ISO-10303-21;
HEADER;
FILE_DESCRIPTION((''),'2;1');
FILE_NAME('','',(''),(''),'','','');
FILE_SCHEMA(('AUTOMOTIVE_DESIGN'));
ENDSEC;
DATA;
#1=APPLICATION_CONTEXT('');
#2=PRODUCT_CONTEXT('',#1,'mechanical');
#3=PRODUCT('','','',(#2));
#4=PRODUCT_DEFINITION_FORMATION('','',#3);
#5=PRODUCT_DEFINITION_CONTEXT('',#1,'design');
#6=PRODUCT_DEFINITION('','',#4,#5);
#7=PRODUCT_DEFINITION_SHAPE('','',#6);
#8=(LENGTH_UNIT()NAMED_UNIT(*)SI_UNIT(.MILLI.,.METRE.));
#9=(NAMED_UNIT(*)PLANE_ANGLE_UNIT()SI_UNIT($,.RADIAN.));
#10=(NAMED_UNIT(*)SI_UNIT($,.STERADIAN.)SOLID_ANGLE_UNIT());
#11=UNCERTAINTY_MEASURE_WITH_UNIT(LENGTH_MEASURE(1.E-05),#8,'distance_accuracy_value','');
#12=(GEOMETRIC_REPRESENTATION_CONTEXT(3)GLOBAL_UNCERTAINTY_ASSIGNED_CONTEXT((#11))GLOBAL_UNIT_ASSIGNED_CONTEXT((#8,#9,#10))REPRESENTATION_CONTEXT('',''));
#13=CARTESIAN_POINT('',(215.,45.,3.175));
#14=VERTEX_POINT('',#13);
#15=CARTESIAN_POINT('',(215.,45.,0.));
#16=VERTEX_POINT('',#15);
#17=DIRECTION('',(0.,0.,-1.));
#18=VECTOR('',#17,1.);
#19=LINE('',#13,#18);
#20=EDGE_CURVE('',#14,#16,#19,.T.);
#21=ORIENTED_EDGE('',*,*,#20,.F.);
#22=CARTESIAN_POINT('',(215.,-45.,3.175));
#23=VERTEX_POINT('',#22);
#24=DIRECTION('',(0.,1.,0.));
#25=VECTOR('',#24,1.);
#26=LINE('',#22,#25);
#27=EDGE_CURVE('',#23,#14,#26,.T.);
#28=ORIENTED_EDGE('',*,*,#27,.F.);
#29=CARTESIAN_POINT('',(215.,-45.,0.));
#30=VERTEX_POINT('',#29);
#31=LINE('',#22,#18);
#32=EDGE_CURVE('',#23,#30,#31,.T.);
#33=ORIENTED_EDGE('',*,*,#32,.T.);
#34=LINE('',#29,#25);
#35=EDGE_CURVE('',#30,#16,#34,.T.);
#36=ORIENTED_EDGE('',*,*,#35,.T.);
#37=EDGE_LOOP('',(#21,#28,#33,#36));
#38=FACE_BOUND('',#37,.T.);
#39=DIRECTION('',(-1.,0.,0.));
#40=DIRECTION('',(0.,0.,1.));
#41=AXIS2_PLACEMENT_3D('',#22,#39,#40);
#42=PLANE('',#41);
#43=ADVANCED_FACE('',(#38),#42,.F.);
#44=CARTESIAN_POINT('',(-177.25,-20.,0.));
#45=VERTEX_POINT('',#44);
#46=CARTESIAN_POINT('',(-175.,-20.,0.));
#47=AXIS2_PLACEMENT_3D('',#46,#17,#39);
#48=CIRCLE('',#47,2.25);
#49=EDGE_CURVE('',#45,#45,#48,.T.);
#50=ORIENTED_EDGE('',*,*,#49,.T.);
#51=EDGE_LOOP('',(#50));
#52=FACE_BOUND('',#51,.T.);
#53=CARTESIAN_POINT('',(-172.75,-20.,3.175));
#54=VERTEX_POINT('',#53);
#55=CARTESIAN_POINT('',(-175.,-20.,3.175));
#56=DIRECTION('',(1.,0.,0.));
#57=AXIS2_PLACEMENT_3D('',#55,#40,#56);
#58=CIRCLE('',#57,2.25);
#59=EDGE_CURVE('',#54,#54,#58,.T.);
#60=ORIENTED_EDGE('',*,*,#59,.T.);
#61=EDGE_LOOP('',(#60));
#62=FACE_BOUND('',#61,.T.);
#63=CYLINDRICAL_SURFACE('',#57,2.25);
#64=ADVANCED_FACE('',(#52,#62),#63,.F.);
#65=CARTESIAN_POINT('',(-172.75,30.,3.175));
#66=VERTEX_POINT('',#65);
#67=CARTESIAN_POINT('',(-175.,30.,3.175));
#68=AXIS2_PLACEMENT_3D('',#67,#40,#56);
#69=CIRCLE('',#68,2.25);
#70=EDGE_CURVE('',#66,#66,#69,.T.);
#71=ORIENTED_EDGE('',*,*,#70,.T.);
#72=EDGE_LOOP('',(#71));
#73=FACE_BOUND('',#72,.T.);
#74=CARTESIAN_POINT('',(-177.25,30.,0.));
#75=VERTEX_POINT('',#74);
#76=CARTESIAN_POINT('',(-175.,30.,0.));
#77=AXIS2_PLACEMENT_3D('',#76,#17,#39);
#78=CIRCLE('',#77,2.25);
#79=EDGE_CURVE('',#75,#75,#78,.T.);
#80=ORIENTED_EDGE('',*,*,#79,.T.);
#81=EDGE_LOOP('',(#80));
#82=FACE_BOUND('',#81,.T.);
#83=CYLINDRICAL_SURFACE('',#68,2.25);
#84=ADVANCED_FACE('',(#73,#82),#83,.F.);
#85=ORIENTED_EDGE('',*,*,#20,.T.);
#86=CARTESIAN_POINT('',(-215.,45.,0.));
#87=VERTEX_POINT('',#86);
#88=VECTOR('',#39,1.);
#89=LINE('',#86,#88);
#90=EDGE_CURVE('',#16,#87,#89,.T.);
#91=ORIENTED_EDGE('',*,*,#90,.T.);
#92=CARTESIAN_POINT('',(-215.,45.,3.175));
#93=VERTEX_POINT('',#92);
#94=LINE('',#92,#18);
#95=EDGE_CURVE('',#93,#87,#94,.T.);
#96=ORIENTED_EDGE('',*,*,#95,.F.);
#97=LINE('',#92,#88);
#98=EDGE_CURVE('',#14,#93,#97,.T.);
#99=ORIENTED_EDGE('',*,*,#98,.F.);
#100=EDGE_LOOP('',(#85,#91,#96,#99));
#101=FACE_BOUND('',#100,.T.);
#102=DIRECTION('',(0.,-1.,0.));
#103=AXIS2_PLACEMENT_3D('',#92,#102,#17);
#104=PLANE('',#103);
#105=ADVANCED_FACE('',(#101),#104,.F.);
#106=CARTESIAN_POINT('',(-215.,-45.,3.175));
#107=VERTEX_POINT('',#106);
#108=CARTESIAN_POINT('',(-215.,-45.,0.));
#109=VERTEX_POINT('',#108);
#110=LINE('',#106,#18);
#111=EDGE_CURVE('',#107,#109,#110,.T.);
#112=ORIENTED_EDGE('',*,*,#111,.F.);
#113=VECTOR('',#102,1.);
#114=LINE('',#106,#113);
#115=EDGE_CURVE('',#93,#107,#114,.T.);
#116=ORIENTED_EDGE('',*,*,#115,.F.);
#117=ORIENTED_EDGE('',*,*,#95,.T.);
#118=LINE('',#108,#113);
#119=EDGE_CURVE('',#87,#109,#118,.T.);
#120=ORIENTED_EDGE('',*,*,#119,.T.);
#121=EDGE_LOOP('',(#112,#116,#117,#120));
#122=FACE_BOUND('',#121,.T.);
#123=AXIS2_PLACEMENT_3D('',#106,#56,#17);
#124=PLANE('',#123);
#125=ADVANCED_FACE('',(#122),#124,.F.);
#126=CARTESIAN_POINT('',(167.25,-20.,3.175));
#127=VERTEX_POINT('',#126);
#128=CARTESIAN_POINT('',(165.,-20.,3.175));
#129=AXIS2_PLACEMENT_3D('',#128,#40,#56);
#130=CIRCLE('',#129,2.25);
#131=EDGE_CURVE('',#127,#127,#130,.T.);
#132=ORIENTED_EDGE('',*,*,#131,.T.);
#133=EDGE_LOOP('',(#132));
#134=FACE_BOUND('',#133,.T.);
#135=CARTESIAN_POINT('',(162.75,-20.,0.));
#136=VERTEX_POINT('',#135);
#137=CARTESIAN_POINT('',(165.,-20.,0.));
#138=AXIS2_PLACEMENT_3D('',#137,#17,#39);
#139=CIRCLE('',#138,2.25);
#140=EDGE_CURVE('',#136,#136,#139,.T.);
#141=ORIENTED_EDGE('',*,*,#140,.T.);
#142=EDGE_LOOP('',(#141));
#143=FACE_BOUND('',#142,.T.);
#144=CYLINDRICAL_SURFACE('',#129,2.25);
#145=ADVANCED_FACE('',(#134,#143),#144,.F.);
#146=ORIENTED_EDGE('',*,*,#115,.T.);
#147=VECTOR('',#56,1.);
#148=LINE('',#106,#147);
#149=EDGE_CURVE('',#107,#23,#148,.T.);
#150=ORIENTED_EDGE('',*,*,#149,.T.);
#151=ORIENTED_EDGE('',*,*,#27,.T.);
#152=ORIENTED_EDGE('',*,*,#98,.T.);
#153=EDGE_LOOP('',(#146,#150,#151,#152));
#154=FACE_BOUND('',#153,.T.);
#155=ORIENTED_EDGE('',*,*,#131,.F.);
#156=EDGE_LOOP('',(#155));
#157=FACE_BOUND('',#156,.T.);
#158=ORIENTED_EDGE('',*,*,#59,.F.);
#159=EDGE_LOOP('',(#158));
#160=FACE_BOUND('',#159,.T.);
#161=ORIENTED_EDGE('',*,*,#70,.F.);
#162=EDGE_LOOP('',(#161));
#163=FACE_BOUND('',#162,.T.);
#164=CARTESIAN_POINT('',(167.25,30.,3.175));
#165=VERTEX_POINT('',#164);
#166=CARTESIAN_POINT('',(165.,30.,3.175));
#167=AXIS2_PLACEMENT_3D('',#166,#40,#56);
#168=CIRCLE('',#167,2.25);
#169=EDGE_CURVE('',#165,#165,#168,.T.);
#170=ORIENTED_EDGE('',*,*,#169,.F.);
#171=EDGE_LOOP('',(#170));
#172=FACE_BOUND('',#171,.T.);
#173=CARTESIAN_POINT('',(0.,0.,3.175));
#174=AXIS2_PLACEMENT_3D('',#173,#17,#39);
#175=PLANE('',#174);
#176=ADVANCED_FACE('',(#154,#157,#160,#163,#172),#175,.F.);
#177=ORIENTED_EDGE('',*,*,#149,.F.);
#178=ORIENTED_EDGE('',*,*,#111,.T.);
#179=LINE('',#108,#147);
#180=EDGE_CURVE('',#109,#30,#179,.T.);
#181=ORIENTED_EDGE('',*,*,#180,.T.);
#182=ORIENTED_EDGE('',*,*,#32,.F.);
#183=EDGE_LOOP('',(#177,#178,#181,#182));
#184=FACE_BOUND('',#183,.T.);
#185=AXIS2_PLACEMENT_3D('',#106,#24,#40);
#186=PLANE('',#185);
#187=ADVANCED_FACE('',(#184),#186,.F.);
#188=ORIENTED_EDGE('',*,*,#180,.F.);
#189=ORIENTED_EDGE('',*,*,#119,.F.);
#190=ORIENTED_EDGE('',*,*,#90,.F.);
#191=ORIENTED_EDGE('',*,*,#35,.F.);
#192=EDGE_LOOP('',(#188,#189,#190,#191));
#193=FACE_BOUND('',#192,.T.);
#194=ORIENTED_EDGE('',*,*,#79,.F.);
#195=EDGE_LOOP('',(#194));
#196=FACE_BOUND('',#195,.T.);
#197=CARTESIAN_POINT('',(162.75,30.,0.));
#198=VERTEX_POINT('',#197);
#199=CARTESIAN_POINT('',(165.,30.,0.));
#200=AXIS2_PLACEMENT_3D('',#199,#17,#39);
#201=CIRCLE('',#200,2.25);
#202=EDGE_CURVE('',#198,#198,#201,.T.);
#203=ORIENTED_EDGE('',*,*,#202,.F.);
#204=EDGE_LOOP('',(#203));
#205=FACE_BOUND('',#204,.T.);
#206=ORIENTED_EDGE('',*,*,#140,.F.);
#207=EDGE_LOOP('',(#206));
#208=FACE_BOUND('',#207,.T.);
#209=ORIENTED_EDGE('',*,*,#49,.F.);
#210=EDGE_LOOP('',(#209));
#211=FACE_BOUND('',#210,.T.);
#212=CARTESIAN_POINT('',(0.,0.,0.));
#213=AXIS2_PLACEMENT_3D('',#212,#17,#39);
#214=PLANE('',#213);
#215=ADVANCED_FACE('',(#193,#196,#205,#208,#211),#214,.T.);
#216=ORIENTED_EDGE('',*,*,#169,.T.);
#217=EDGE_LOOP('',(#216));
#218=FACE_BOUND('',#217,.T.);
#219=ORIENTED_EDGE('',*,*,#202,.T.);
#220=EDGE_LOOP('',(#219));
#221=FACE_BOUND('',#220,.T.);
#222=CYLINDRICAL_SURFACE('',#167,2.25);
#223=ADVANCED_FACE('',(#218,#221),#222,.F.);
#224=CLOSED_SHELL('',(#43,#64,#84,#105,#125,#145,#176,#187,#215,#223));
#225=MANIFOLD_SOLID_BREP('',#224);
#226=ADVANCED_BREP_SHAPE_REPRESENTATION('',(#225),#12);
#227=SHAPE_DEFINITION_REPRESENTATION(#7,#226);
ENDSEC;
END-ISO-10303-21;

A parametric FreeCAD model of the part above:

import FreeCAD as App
import Part
import Sketcher
from FreeCAD import Vector
Q = App.Units.Quantity


def add_polygon(sketch, points):
    """Adds a closed chain of lines whose ends are joined by coincident constraints."""
    first, n = sketch.GeometryCount, len(points)
    for a, b in zip(points, points[1:] + points[:1]):
        sketch.addGeometry(Part.LineSegment(App.Vector(*a, 0), App.Vector(*b, 0)), False)
    for i in range(n):
        sketch.addConstraint(Sketcher.Constraint("Coincident", first + i, 2, first + (i + 1) % n, 1))

doc = App.newDocument("Part")
params = doc.addObject("Spreadsheet::Sheet", "Params")
for row, (alias, value) in enumerate([
    ("sketch1_width", "430 mm"),
    ("sketch1_height", "90 mm"),
    ("pad1_length", "3.175 mm"),
    ("sketch2_diameter", "4.5 mm"),
    ("hole_diameter", "4.5 mm"),
    ("hole_depth", "10.1 mm"),
], start=1):
    params.set(f"A{row}", alias)
    params.set(f"B{row}", "=" + value)
    params.setAlias(f"B{row}", alias)

body = doc.addObject("PartDesign::Body", "Body")

# Sketch on XY plane
sketch1 = doc.addObject("Sketcher::SketchObject", "Sketch")
body.addObject(sketch1)
sketch1.AttachmentSupport = (doc.XY_Plane, [""])
sketch1.MapMode = "FlatFace"
add_polygon(sketch1, [(-215, 45), (-215, -45), (215, -45), (215, 45)])  # lines 0-3
sketch1.addConstraint([
    Sketcher.Constraint("Vertical", 0),
    Sketcher.Constraint("Horizontal", 1),
    Sketcher.Constraint("Vertical", 2),
    Sketcher.Constraint("Horizontal", 3),
    Sketcher.Constraint("Symmetric", 0, 2, 2, 2, -1, 1),
    Sketcher.Constraint("DistanceX", 1, 1, 1, 2, Q("430 mm")),
    Sketcher.Constraint("DistanceY", 0, 2, 0, 1, Q("90 mm")),
])
sketch1.setExpression("Constraints[9]", "Params.sketch1_width")
sketch1.setExpression("Constraints[10]", "Params.sketch1_height")
pad1 = doc.addObject("PartDesign::Pad", "Pad")
body.addObject(pad1)
pad1.Profile = sketch1
pad1.setExpression("Length", "Params.pad1_length")

# Sketch on XY plane
sketch2 = doc.addObject("Sketcher::SketchObject", "Sketch001")
body.addObject(sketch2)
sketch2.AttachmentSupport = (doc.XY_Plane, [""])
sketch2.MapMode = "FlatFace"
sketch2.AttachmentOffset = App.Placement(Vector(0, 0, 3.175), App.Rotation())
sketch2.addGeometry([
    Part.Circle(Vector(165, 30, 0), Vector(0, 0, 1), 2.2),
    Part.Circle(Vector(-175, -20, 0), Vector(0, 0, 1), 2.2),
    Part.Circle(Vector(-175, 30, 0), Vector(0, 0, 1), 2.2),
    Part.Circle(Vector(165, -20, 0), Vector(0, 0, 1), 2.2),
], False)
sketch2.addConstraint([
    Sketcher.Constraint("Equal", 0, 1),
    Sketcher.Constraint("Equal", 1, 2),
    Sketcher.Constraint("Equal", 2, 3),
    Sketcher.Constraint("Horizontal", 0, 3, 2, 3),
    Sketcher.Constraint("Horizontal", 1, 3, 3, 3),
    Sketcher.Constraint("Vertical", 1, 3, 2, 3),
    Sketcher.Constraint("Vertical", 0, 3, 3, 3),
    Sketcher.Constraint("Diameter", 0, Q("4.5 mm")),
    Sketcher.Constraint("DistanceX", -1, 1, 0, 3, Q("165 mm")),
    Sketcher.Constraint("DistanceY", -1, 1, 0, 3, Q("30 mm")),
    Sketcher.Constraint("DistanceX", 1, 3, -1, 1, Q("175 mm")),
    Sketcher.Constraint("DistanceY", 1, 3, -1, 1, Q("20 mm")),
])
sketch2.setExpression("Constraints[7]", "Params.sketch2_diameter")
doc.recompute()
hole = doc.addObject("PartDesign::Hole", "Hole")
body.addObject(hole)
hole.Profile = sketch2
hole.ThreadType = "None"
hole.setExpression("Diameter", "Params.hole_diameter")
hole.DepthType = "Dimension"
hole.setExpression("Depth", "Params.hole_depth")
hole.DrillPoint = "Angled"
hole.DrillPointAngle = 118

doc.recompute()
